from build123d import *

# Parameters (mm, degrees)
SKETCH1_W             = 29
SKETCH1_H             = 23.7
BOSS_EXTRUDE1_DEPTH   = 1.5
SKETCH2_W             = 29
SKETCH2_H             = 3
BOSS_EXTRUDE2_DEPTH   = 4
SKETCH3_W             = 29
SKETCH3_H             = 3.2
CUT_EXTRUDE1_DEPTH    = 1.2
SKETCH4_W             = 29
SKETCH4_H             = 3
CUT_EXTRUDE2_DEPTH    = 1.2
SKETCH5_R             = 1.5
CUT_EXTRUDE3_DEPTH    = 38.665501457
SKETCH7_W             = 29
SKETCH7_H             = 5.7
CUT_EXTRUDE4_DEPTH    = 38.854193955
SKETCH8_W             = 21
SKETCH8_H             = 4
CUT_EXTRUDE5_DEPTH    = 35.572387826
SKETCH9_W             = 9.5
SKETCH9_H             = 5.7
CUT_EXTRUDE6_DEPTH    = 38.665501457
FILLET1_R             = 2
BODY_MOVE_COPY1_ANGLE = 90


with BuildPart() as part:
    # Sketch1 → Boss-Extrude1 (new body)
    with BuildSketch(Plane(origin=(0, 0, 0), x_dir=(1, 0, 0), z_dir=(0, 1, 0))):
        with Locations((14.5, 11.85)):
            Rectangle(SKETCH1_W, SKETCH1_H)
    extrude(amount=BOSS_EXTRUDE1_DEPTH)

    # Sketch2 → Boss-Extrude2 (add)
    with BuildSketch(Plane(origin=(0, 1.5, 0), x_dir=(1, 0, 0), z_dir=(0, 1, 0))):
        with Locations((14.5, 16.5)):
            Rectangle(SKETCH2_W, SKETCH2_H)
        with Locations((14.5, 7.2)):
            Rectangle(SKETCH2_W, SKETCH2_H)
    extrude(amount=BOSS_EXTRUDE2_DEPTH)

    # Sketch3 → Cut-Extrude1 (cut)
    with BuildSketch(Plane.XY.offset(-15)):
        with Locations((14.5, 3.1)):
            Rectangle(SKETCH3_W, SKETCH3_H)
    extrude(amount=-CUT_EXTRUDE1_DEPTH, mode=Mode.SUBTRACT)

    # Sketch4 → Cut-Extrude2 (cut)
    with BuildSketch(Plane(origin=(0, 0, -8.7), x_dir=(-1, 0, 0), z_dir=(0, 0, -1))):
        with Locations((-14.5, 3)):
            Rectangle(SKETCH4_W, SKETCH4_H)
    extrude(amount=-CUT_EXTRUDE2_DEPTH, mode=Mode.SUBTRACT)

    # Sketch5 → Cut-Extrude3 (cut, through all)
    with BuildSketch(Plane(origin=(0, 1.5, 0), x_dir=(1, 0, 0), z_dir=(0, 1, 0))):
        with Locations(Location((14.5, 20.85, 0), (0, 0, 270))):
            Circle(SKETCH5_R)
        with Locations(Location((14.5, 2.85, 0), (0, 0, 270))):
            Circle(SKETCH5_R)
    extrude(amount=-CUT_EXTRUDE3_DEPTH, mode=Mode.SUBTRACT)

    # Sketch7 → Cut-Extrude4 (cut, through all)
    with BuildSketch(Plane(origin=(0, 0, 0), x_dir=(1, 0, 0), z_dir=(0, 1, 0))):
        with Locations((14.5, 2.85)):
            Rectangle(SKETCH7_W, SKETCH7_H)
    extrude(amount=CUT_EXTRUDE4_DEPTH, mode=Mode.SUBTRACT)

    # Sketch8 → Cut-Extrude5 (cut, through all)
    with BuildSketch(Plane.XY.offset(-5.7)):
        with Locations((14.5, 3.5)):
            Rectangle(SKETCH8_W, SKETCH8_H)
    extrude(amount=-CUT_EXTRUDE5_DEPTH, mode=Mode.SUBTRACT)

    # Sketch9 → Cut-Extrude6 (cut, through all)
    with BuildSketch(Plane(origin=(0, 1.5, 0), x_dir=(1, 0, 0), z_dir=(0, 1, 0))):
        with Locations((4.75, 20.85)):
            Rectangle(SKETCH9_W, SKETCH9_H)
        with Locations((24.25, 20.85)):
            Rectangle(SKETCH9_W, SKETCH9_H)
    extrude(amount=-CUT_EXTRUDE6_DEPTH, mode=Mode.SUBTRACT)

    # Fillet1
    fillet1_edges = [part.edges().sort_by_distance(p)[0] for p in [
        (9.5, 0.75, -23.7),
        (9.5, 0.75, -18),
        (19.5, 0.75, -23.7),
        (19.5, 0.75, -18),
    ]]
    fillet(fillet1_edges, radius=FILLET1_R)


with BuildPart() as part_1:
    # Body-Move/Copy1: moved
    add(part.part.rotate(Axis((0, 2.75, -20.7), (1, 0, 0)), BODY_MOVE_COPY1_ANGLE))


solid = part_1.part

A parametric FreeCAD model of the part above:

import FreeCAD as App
import Part
import Sketcher


def edges_at(feature, points):
    """Names of the edges that pass closest to the given points."""
    edges = feature.Shape.Edges
    near = lambda p: min(range(len(edges)), key=lambda i: edges[i].distToShape(Part.Vertex(*p))[0])
    return sorted({f"Edge{near(p) + 1}" for p in points})

doc = App.newDocument("Part")
body = doc.addObject("PartDesign::Body", "Body")

# Sketch on XZ plane
sketch1 = doc.addObject("Sketcher::SketchObject", "Sketch")
body.addObject(sketch1)
sketch1.AttachmentSupport = (doc.XZ_Plane, [""])
sketch1.MapMode = "FlatFace"
sketch1.addGeometry(Part.LineSegment(App.Vector(0, -24, 0), App.Vector(0, 0, 0)), False)
sketch1.addGeometry(Part.LineSegment(App.Vector(0, 0, 0), App.Vector(29, 0, 0)), False)
sketch1.addGeometry(Part.LineSegment(App.Vector(29, 0, 0), App.Vector(29, -24, 0)), False)
sketch1.addGeometry(Part.LineSegment(App.Vector(29, -24, 0), App.Vector(0, -24, 0)), False)
sketch1.addConstraint(Sketcher.Constraint("Coincident", 0, 2, 1, 1))
sketch1.addConstraint(Sketcher.Constraint("Coincident", 1, 2, 2, 1))
sketch1.addConstraint(Sketcher.Constraint("Coincident", 2, 2, 3, 1))
sketch1.addConstraint(Sketcher.Constraint("Coincident", 3, 2, 0, 1))
sketch1.addConstraint(Sketcher.Constraint("Vertical", 0))
sketch1.addConstraint(Sketcher.Constraint("Horizontal", 1))
sketch1.addConstraint(Sketcher.Constraint("Vertical", 2))
sketch1.addConstraint(Sketcher.Constraint("Horizontal", 3))
sketch1.addConstraint(Sketcher.Constraint("Coincident", 0, 2, -1, 1))
sketch1.addConstraint(Sketcher.Constraint("DistanceX", 1, 1, 1, 2, 29.0))
sketch1.addConstraint(Sketcher.Constraint("DistanceY", 0, 1, 0, 2, 23.7))
pad1 = doc.addObject("PartDesign::Pad", "Pad")
body.addObject(pad1)
pad1.Profile = sketch1
pad1.Length = 1.5
pad1.Reversed = True

# Sketch on XZ plane
sketch2 = doc.addObject("Sketcher::SketchObject", "Sketch001")
body.addObject(sketch2)
sketch2.AttachmentSupport = (doc.XZ_Plane, [""])
sketch2.MapMode = "FlatFace"
sketch2.AttachmentOffset = App.Placement(App.Vector(0, 0, -1.5), App.Rotation())
sketch2.addGeometry(Part.LineSegment(App.Vector(0, -18, 0), App.Vector(0, -15, 0)), False)
sketch2.addGeometry(Part.LineSegment(App.Vector(0, -15, 0), App.Vector(29, -15, 0)), False)
sketch2.addGeometry(Part.LineSegment(App.Vector(29, -15, 0), App.Vector(29, -18, 0)), False)
sketch2.addGeometry(Part.LineSegment(App.Vector(29, -18, 0), App.Vector(0, -18, 0)), False)
sketch2.addGeometry(Part.LineSegment(App.Vector(0, -8.7, 0), App.Vector(0, -5.7, 0)), False)
sketch2.addGeometry(Part.LineSegment(App.Vector(0, -5.7, 0), App.Vector(29, -5.7, 0)), False)
sketch2.addGeometry(Part.LineSegment(App.Vector(29, -5.7, 0), App.Vector(29, -8.7, 0)), False)
sketch2.addGeometry(Part.LineSegment(App.Vector(29, -8.7, 0), App.Vector(0, -8.7, 0)), False)
sketch2.addConstraint(Sketcher.Constraint("Coincident", 0, 2, 1, 1))
sketch2.addConstraint(Sketcher.Constraint("Coincident", 1, 2, 2, 1))
sketch2.addConstraint(Sketcher.Constraint("Coincident", 2, 2, 3, 1))
sketch2.addConstraint(Sketcher.Constraint("Coincident", 3, 2, 0, 1))
sketch2.addConstraint(Sketcher.Constraint("Coincident", 4, 2, 5, 1))
sketch2.addConstraint(Sketcher.Constraint("Coincident", 5, 2, 6, 1))
sketch2.addConstraint(Sketcher.Constraint("Coincident", 6, 2, 7, 1))
sketch2.addConstraint(Sketcher.Constraint("Coincident", 7, 2, 4, 1))
sketch2.addConstraint(Sketcher.Constraint("Vertical", 0))
sketch2.addConstraint(Sketcher.Constraint("Horizontal", 1))
sketch2.addConstraint(Sketcher.Constraint("Vertical", 2))
sketch2.addConstraint(Sketcher.Constraint("Horizontal", 3))
sketch2.addConstraint(Sketcher.Constraint("Vertical", 4))
sketch2.addConstraint(Sketcher.Constraint("Horizontal", 5))
sketch2.addConstraint(Sketcher.Constraint("Vertical", 6))
sketch2.addConstraint(Sketcher.Constraint("Horizontal", 7))
sketch2.addConstraint(Sketcher.Constraint("PointOnObject", 0, 2, -2))
sketch2.addConstraint(Sketcher.Constraint("PointOnObject", 4, 2, -2))
sketch2.addConstraint(Sketcher.Constraint("Vertical", 2, 2, 5, 2))
sketch2.addConstraint(Sketcher.Constraint("Equal", 2, 4))
sketch2.addConstraint(Sketcher.Constraint("DistanceX", 1, 1, 1, 2, 29.0))
sketch2.addConstraint(Sketcher.Constraint("DistanceY", 0, 1, 0, 2, 3.0))
sketch2.addConstraint(Sketcher.Constraint("DistanceY", 0, 2, -1, 1, 15.0))
sketch2.addConstraint(Sketcher.Constraint("DistanceY", 4, 2, -1, 1, 5.7))
pad2 = doc.addObject("PartDesign::Pad", "Pad001")
body.addObject(pad2)
pad2.Profile = sketch2
pad2.Length = 4
pad2.Reversed = True

# Sketch on XY plane
sketch3 = doc.addObject("Sketcher::SketchObject", "Sketch002")
body.addObject(sketch3)
sketch3.AttachmentSupport = (doc.XY_Plane, [""])
sketch3.MapMode = "FlatFace"
sketch3.AttachmentOffset = App.Placement(App.Vector(0, 0, -15), App.Rotation())
sketch3.addGeometry(Part.LineSegment(App.Vector(0, 4.7, 0), App.Vector(0, 1.5, 0)), False)
sketch3.addGeometry(Part.LineSegment(App.Vector(0, 1.5, 0), App.Vector(29, 1.5, 0)), False)
sketch3.addGeometry(Part.LineSegment(App.Vector(29, 1.5, 0), App.Vector(29, 4.7, 0)), False)
sketch3.addGeometry(Part.LineSegment(App.Vector(29, 4.7, 0), App.Vector(0, 4.7, 0)), False)
sketch3.addConstraint(Sketcher.Constraint("Coincident", 0, 2, 1, 1))
sketch3.addConstraint(Sketcher.Constraint("Coincident", 1, 2, 2, 1))
sketch3.addConstraint(Sketcher.Constraint("Coincident", 2, 2, 3, 1))
sketch3.addConstraint(Sketcher.Constraint("Coincident", 3, 2, 0, 1))
sketch3.addConstraint(Sketcher.Constraint("Vertical", 0))
sketch3.addConstraint(Sketcher.Constraint("Horizontal", 1))
sketch3.addConstraint(Sketcher.Constraint("Vertical", 2))
sketch3.addConstraint(Sketcher.Constraint("Horizontal", 3))
sketch3.addConstraint(Sketcher.Constraint("PointOnObject", 0, 2, -2))
sketch3.addConstraint(Sketcher.Constraint("DistanceX", 1, 1, 1, 2, 29.0))
sketch3.addConstraint(Sketcher.Constraint("DistanceY", 0, 2, 0, 1, 3.2))
sketch3.addConstraint(Sketcher.Constraint("DistanceY", -1, 1, 0, 2, 1.5))
pocket1 = doc.addObject("PartDesign::Pocket", "Pocket")
body.addObject(pocket1)
pocket1.Profile = sketch3
pocket1.Length = 1.2

# Sketch on XY plane
sketch4 = doc.addObject("Sketcher::SketchObject", "Sketch003")
body.addObject(sketch4)
sketch4.AttachmentSupport = (doc.XY_Plane, [""])
sketch4.MapMode = "FlatFace"
sketch4.AttachmentOffset = App.Placement(App.Vector(0, 0, -8.7), App.Rotation())
sketch4.addGeometry(Part.LineSegment(App.Vector(29, 4.5, 0), App.Vector(29, 1.5, 0)), False)
sketch4.addGeometry(Part.LineSegment(App.Vector(29, 1.5, 0), App.Vector(0, 1.5, 0)), False)
sketch4.addGeometry(Part.LineSegment(App.Vector(0, 1.5, 0), App.Vector(0, 4.5, 0)), False)
sketch4.addGeometry(Part.LineSegment(App.Vector(0, 4.5, 0), App.Vector(29, 4.5, 0)), False)
sketch4.addConstraint(Sketcher.Constraint("Coincident", 0, 2, 1, 1))
sketch4.addConstraint(Sketcher.Constraint("Coincident", 1, 2, 2, 1))
sketch4.addConstraint(Sketcher.Constraint("Coincident", 2, 2, 3, 1))
sketch4.addConstraint(Sketcher.Constraint("Coincident", 3, 2, 0, 1))
sketch4.addConstraint(Sketcher.Constraint("Vertical", 0))
sketch4.addConstraint(Sketcher.Constraint("Horizontal", 1))
sketch4.addConstraint(Sketcher.Constraint("Vertical", 2))
sketch4.addConstraint(Sketcher.Constraint("Horizontal", 3))
sketch4.addConstraint(Sketcher.Constraint("PointOnObject", 1, 2, -2))
sketch4.addConstraint(Sketcher.Constraint("DistanceX", 1, 2, 1, 1, 29.0))
sketch4.addConstraint(Sketcher.Constraint("DistanceY", 0, 2, 0, 1, 3.0))
sketch4.addConstraint(Sketcher.Constraint("DistanceY", -1, 1, 0, 2, 1.5))
pocket2 = doc.addObject("PartDesign::Pocket", "Pocket001")
body.addObject(pocket2)
pocket2.Profile = sketch4
pocket2.Length = 1.2
pocket2.Reversed = True

# Sketch on XZ plane
sketch5 = doc.addObject("Sketcher::SketchObject", "Sketch004")
body.addObject(sketch5)
sketch5.AttachmentSupport = (doc.XZ_Plane, [""])
sketch5.MapMode = "FlatFace"
sketch5.AttachmentOffset = App.Placement(App.Vector(0, 0, -1.5), App.Rotation())
sketch5.addGeometry(Part.Circle(App.Vector(14.5, -20.9, 0), App.Vector(0, 0, 1), 1.5), False)
sketch5.addGeometry(Part.Circle(App.Vector(14.5, -2.9, 0), App.Vector(0, 0, 1), 1.5), False)
sketch5.addConstraint(Sketcher.Constraint("Equal", 0, 1))
sketch5.addConstraint(Sketcher.Constraint("Vertical", 0, 3, 1, 3))
sketch5.addConstraint(Sketcher.Constraint("Diameter", 0, 3.0))
sketch5.addConstraint(Sketcher.Constraint("DistanceY", 0, 3, 1, 3, 18.0))
sketch5.addConstraint(Sketcher.Constraint("DistanceX", -1, 1, 0, 3, 14.5))
sketch5.addConstraint(Sketcher.Constraint("DistanceY", 0, 3, -1, 1, 20.85))
pocket3 = doc.addObject("PartDesign::Pocket", "Pocket002")
body.addObject(pocket3)
pocket3.Profile = sketch5
pocket3.Type = "ThroughAll"
pocket3.Reversed = True

# Sketch on XZ plane
sketch6 = doc.addObject("Sketcher::SketchObject", "Sketch005")
body.addObject(sketch6)
sketch6.AttachmentSupport = (doc.XZ_Plane, [""])
sketch6.MapMode = "FlatFace"
sketch6.addGeometry(Part.LineSegment(App.Vector(0, -6, 0), App.Vector(0, 0, 0)), False)
sketch6.addGeometry(Part.LineSegment(App.Vector(0, 0, 0), App.Vector(29, 0, 0)), False)
sketch6.addGeometry(Part.LineSegment(App.Vector(29, 0, 0), App.Vector(29, -6, 0)), False)
sketch6.addGeometry(Part.LineSegment(App.Vector(29, -6, 0), App.Vector(0, -6, 0)), False)
sketch6.addConstraint(Sketcher.Constraint("Coincident", 0, 2, 1, 1))
sketch6.addConstraint(Sketcher.Constraint("Coincident", 1, 2, 2, 1))
sketch6.addConstraint(Sketcher.Constraint("Coincident", 2, 2, 3, 1))
sketch6.addConstraint(Sketcher.Constraint("Coincident", 3, 2, 0, 1))
sketch6.addConstraint(Sketcher.Constraint("Vertical", 0))
sketch6.addConstraint(Sketcher.Constraint("Horizontal", 1))
sketch6.addConstraint(Sketcher.Constraint("Vertical", 2))
sketch6.addConstraint(Sketcher.Constraint("Horizontal", 3))
sketch6.addConstraint(Sketcher.Constraint("Coincident", 0, 2, -1, 1))
sketch6.addConstraint(Sketcher.Constraint("DistanceX", 1, 1, 1, 2, 29.0))
sketch6.addConstraint(Sketcher.Constraint("DistanceY", 0, 1, 0, 2, 5.7))
pocket4 = doc.addObject("PartDesign::Pocket", "Pocket003")
body.addObject(pocket4)
pocket4.Profile = sketch6
pocket4.Type = "ThroughAll"

# Sketch on XY plane
sketch7 = doc.addObject("Sketcher::SketchObject", "Sketch006")
body.addObject(sketch7)
sketch7.AttachmentSupport = (doc.XY_Plane, [""])
sketch7.MapMode = "FlatFace"
sketch7.AttachmentOffset = App.Placement(App.Vector(0, 0, -5.7), App.Rotation())
sketch7.addGeometry(Part.LineSegment(App.Vector(4, 5.5, 0), App.Vector(4, 1.5, 0)), False)
sketch7.addGeometry(Part.LineSegment(App.Vector(4, 1.5, 0), App.Vector(25, 1.5, 0)), False)
sketch7.addGeometry(Part.LineSegment(App.Vector(25, 1.5, 0), App.Vector(25, 5.5, 0)), False)
sketch7.addGeometry(Part.LineSegment(App.Vector(25, 5.5, 0), App.Vector(4, 5.5, 0)), False)
sketch7.addConstraint(Sketcher.Constraint("Coincident", 0, 2, 1, 1))
sketch7.addConstraint(Sketcher.Constraint("Coincident", 1, 2, 2, 1))
sketch7.addConstraint(Sketcher.Constraint("Coincident", 2, 2, 3, 1))
sketch7.addConstraint(Sketcher.Constraint("Coincident", 3, 2, 0, 1))
sketch7.addConstraint(Sketcher.Constraint("Vertical", 0))
sketch7.addConstraint(Sketcher.Constraint("Horizontal", 1))
sketch7.addConstraint(Sketcher.Constraint("Vertical", 2))
sketch7.addConstraint(Sketcher.Constraint("Horizontal", 3))
sketch7.addConstraint(Sketcher.Constraint("DistanceX", 1, 1, 1, 2, 21.0))
sketch7.addConstraint(Sketcher.Constraint("DistanceY", 0, 2, 0, 1, 4.0))
sketch7.addConstraint(Sketcher.Constraint("DistanceX", -1, 1, 0, 2, 4.0))
sketch7.addConstraint(Sketcher.Constraint("DistanceY", -1, 1, 0, 2, 1.5))
pocket5 = doc.addObject("PartDesign::Pocket", "Pocket004")
body.addObject(pocket5)
pocket5.Profile = sketch7
pocket5.Type = "ThroughAll"

# Sketch on XZ plane
sketch8 = doc.addObject("Sketcher::SketchObject", "Sketch007")
body.addObject(sketch8)
sketch8.AttachmentSupport = (doc.XZ_Plane, [""])
sketch8.MapMode = "FlatFace"
sketch8.AttachmentOffset = App.Placement(App.Vector(0, 0, -1.5), App.Rotation())
sketch8.addGeometry(Part.LineSegment(App.Vector(0, -24, 0), App.Vector(0, -18, 0)), False)
sketch8.addGeometry(Part.LineSegment(App.Vector(0, -18, 0), App.Vector(10, -18, 0)), False)
sketch8.addGeometry(Part.LineSegment(App.Vector(10, -18, 0), App.Vector(10, -24, 0)), False)
sketch8.addGeometry(Part.LineSegment(App.Vector(10, -24, 0), App.Vector(0, -24, 0)), False)
sketch8.addGeometry(Part.LineSegment(App.Vector(20, -24, 0), App.Vector(20, -18, 0)), False)
sketch8.addGeometry(Part.LineSegment(App.Vector(20, -18, 0), App.Vector(29, -18, 0)), False)
sketch8.addGeometry(Part.LineSegment(App.Vector(29, -18, 0), App.Vector(29, -24, 0)), False)
sketch8.addGeometry(Part.LineSegment(App.Vector(29, -24, 0), App.Vector(20, -24, 0)), False)
sketch8.addConstraint(Sketcher.Constraint("Coincident", 0, 2, 1, 1))
sketch8.addConstraint(Sketcher.Constraint("Coincident", 1, 2, 2, 1))
sketch8.addConstraint(Sketcher.Constraint("Coincident", 2, 2, 3, 1))
sketch8.addConstraint(Sketcher.Constraint("Coincident", 3, 2, 0, 1))
sketch8.addConstraint(Sketcher.Constraint("Coincident", 4, 2, 5, 1))
sketch8.addConstraint(Sketcher.Constraint("Coincident", 5, 2, 6, 1))
sketch8.addConstraint(Sketcher.Constraint("Coincident", 6, 2, 7, 1))
sketch8.addConstraint(Sketcher.Constraint("Coincident", 7, 2, 4, 1))
sketch8.addConstraint(Sketcher.Constraint("Vertical", 0))
sketch8.addConstraint(Sketcher.Constraint("Horizontal", 1))
sketch8.addConstraint(Sketcher.Constraint("Vertical", 2))
sketch8.addConstraint(Sketcher.Constraint("Horizontal", 3))
sketch8.addConstraint(Sketcher.Constraint("Vertical", 4))
sketch8.addConstraint(Sketcher.Constraint("Horizontal", 5))
sketch8.addConstraint(Sketcher.Constraint("Vertical", 6))
sketch8.addConstraint(Sketcher.Constraint("Horizontal", 7))
sketch8.addConstraint(Sketcher.Constraint("PointOnObject", 0, 2, -2))
sketch8.addConstraint(Sketcher.Constraint("Horizontal", 1, 2, 4, 2))
sketch8.addConstraint(Sketcher.Constraint("Horizontal", 3, 2, 6, 2))
sketch8.addConstraint(Sketcher.Constraint("Equal", 3, 5))
sketch8.addConstraint(Sketcher.Constraint("DistanceX", 1, 1, 1, 2, 9.5))
sketch8.addConstraint(Sketcher.Constraint("DistanceY", 0, 1, 0, 2, 5.7))
sketch8.addConstraint(Sketcher.Constraint("DistanceY", 0, 2, -1, 1, 18.0))
sketch8.addConstraint(Sketcher.Constraint("DistanceX", -1, 1, 5, 2, 29.0))
pocket6 = doc.addObject("PartDesign::Pocket", "Pocket005")
body.addObject(pocket6)
pocket6.Profile = sketch8
pocket6.Type = "ThroughAll"
pocket6.Reversed = True
doc.recompute()

fillet = doc.addObject("PartDesign::Fillet", "Fillet")
body.addObject(fillet)
fillet.Base = (pocket6, edges_at(pocket6, [
    (9.5, 0.75, -23.7),
    (9.5, 0.75, -18),
    (19.5, 0.75, -23.7),
    (19.5, 0.75, -18),
]))
fillet.Radius = 2
body2 = doc.addObject("PartDesign::Body", "Body001")
doc.recompute()

body.Placement = App.Placement(App.Vector(0, -17.95, -23.45), App.Rotation(App.Vector(1, 0, 0), 90))
boolean = doc.addObject("PartDesign::Boolean", "Boolean")
body2.addObject(boolean)
boolean.Type = "Fuse"
boolean.addObjects([body])

doc.recompute()
